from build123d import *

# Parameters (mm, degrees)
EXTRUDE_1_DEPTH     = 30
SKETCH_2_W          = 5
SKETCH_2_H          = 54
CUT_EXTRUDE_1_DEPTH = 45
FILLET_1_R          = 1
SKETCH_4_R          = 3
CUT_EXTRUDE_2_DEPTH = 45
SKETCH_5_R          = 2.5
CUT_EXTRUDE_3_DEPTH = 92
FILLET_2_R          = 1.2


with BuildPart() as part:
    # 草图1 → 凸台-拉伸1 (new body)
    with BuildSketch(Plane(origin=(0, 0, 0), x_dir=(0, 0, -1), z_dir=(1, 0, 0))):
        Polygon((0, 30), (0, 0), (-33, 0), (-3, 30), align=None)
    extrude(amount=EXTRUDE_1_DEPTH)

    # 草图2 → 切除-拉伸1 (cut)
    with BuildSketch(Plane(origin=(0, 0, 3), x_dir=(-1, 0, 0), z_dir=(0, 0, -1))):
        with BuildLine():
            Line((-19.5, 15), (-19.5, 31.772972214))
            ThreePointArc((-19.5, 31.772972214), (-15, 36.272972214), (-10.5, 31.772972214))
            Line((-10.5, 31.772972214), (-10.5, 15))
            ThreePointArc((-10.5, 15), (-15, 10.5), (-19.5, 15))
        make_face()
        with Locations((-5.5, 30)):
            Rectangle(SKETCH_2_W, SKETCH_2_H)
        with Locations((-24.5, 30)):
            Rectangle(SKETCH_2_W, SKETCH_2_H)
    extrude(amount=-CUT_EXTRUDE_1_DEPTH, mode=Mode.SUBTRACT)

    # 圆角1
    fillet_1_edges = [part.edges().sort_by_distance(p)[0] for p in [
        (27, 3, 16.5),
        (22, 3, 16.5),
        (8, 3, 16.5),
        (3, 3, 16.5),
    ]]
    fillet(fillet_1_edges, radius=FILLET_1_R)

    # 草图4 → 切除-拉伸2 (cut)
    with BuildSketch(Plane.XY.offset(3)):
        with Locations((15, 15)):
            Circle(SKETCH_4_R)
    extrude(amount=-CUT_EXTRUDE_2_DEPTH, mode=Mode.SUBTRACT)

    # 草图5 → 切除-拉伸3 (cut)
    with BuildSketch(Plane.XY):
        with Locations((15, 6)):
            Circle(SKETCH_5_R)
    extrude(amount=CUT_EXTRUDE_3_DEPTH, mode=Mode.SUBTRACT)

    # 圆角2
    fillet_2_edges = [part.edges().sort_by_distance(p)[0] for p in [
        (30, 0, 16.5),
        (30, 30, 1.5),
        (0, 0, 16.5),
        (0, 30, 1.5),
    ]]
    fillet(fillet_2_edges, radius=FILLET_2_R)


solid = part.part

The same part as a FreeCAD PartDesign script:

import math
import FreeCAD as App
import Part
import Sketcher
Q = App.Units.Quantity


def edges_at(feature, points):
    """Names of the edges that pass closest to the given points."""
    edges = feature.Shape.Edges
    near = lambda p: min(range(len(edges)), key=lambda i: edges[i].distToShape(Part.Vertex(*p))[0])
    return sorted({f"Edge{near(p) + 1}" for p in points})

doc = App.newDocument("Part")
body = doc.addObject("PartDesign::Body", "Body")

# Sketch on YZ plane
sketch1 = doc.addObject("Sketcher::SketchObject", "Sketch")
body.addObject(sketch1)
sketch1.AttachmentSupport = (doc.YZ_Plane, [""])
sketch1.MapMode = "FlatFace"
sketch1.addGeometry(Part.LineSegment(App.Vector(0, 0, 0), App.Vector(30, 0, 0)), False)
sketch1.addGeometry(Part.LineSegment(App.Vector(30, 0, 0), App.Vector(30, 3, 0)), False)
sketch1.addGeometry(Part.LineSegment(App.Vector(30, 3, 0), App.Vector(0, 33, 0)), False)
sketch1.addGeometry(Part.LineSegment(App.Vector(0, 33, 0), App.Vector(0, 0, 0)), False)
sketch1.addConstraint(Sketcher.Constraint("Coincident", 0, 2, 1, 1))
sketch1.addConstraint(Sketcher.Constraint("Coincident", 1, 2, 2, 1))
sketch1.addConstraint(Sketcher.Constraint("Coincident", 2, 2, 3, 1))
sketch1.addConstraint(Sketcher.Constraint("Coincident", 3, 2, 0, 1))
sketch1.addConstraint(Sketcher.Constraint("Horizontal", 0))
sketch1.addConstraint(Sketcher.Constraint("Vertical", 1))
sketch1.addConstraint(Sketcher.Constraint("Vertical", 3))
sketch1.addConstraint(Sketcher.Constraint("Coincident", 3, 2, -1, 1))
sketch1.addConstraint(Sketcher.Constraint("DistanceX", 0, 1, 0, 2, Q("30 mm")))
sketch1.addConstraint(Sketcher.Constraint("DistanceY", 1, 1, 1, 2, Q("3 mm")))
sketch1.addConstraint(Sketcher.Constraint("DistanceY", 3, 2, 3, 1, Q("33 mm")))
pad1 = doc.addObject("PartDesign::Pad", "Pad")
body.addObject(pad1)
pad1.Profile = sketch1
pad1.Length = 30

# Sketch on XY plane
sketch2 = doc.addObject("Sketcher::SketchObject", "Sketch001")
body.addObject(sketch2)
sketch2.AttachmentSupport = (doc.XY_Plane, [""])
sketch2.MapMode = "FlatFace"
sketch2.AttachmentOffset = App.Placement(App.Vector(0, 0, 3), App.Rotation())
sketch2.addGeometry(Part.LineSegment(App.Vector(19.5, 31.8, 0), App.Vector(19.5, 15, 0)), False)
sketch2.addGeometry(Part.ArcOfCircle(Part.Circle(App.Vector(15, 15, 0), App.Vector(0, 0, 1), 4.5), math.radians(180), math.radians(360)), False)
sketch2.addGeometry(Part.LineSegment(App.Vector(10.5, 15, 0), App.Vector(10.5, 31.8, 0)), False)
sketch2.addGeometry(Part.ArcOfCircle(Part.Circle(App.Vector(15, 31.8, 0), App.Vector(0, 0, 1), 4.5), math.radians(0), math.radians(180)), False)
sketch2.addGeometry(Part.LineSegment(App.Vector(8, 57, 0), App.Vector(8, 3, 0)), False)
sketch2.addGeometry(Part.LineSegment(App.Vector(8, 3, 0), App.Vector(3, 3, 0)), False)
sketch2.addGeometry(Part.LineSegment(App.Vector(3, 3, 0), App.Vector(3, 57, 0)), False)
sketch2.addGeometry(Part.LineSegment(App.Vector(3, 57, 0), App.Vector(8, 57, 0)), False)
sketch2.addGeometry(Part.LineSegment(App.Vector(27, 57, 0), App.Vector(27, 3, 0)), False)
sketch2.addGeometry(Part.LineSegment(App.Vector(27, 3, 0), App.Vector(22, 3, 0)), False)
sketch2.addGeometry(Part.LineSegment(App.Vector(22, 3, 0), App.Vector(22, 57, 0)), False)
sketch2.addGeometry(Part.LineSegment(App.Vector(22, 57, 0), App.Vector(27, 57, 0)), False)
sketch2.addConstraint(Sketcher.Constraint("Tangent", 0, 2, 1, 2))
sketch2.addConstraint(Sketcher.Constraint("Tangent", 1, 1, 2, 1))
sketch2.addConstraint(Sketcher.Constraint("Tangent", 2, 2, 3, 2))
sketch2.addConstraint(Sketcher.Constraint("Tangent", 3, 1, 0, 1))
sketch2.addConstraint(Sketcher.Constraint("Coincident", 4, 2, 5, 1))
sketch2.addConstraint(Sketcher.Constraint("Coincident", 5, 2, 6, 1))
sketch2.addConstraint(Sketcher.Constraint("Coincident", 6, 2, 7, 1))
sketch2.addConstraint(Sketcher.Constraint("Coincident", 7, 2, 4, 1))
sketch2.addConstraint(Sketcher.Constraint("Coincident", 8, 2, 9, 1))
sketch2.addConstraint(Sketcher.Constraint("Coincident", 9, 2, 10, 1))
sketch2.addConstraint(Sketcher.Constraint("Coincident", 10, 2, 11, 1))
sketch2.addConstraint(Sketcher.Constraint("Coincident", 11, 2, 8, 1))
sketch2.addConstraint(Sketcher.Constraint("Vertical", 0))
sketch2.addConstraint(Sketcher.Constraint("Vertical", 2))
sketch2.addConstraint(Sketcher.Constraint("Vertical", 4))
sketch2.addConstraint(Sketcher.Constraint("Horizontal", 5))
sketch2.addConstraint(Sketcher.Constraint("Vertical", 6))
sketch2.addConstraint(Sketcher.Constraint("Horizontal", 7))
sketch2.addConstraint(Sketcher.Constraint("Vertical", 8))
sketch2.addConstraint(Sketcher.Constraint("Horizontal", 9))
sketch2.addConstraint(Sketcher.Constraint("Vertical", 10))
sketch2.addConstraint(Sketcher.Constraint("Horizontal", 11))
sketch2.addConstraint(Sketcher.Constraint("Horizontal", 5, 2, 8, 2))
sketch2.addConstraint(Sketcher.Constraint("Horizontal", 7, 2, 10, 2))
sketch2.addConstraint(Sketcher.Constraint("Equal", 7, 9))
sketch2.addConstraint(Sketcher.Constraint("Radius", 1, Q("4.5 mm")))
sketch2.addConstraint(Sketcher.Constraint("DistanceX", 5, 2, 5, 1, Q("5 mm")))
sketch2.addConstraint(Sketcher.Constraint("DistanceY", 4, 2, 4, 1, Q("54 mm")))
sketch2.addConstraint(Sketcher.Constraint("DistanceX", -1, 1, 1, 3, Q("15 mm")))
sketch2.addConstraint(Sketcher.Constraint("DistanceY", -1, 1, 1, 3, Q("15 mm")))
sketch2.addConstraint(Sketcher.Constraint("DistanceX", -1, 1, 4, 2, Q("8 mm")))
sketch2.addConstraint(Sketcher.Constraint("DistanceY", -1, 1, 4, 2, Q("3 mm")))
sketch2.addConstraint(Sketcher.Constraint("DistanceX", -1, 1, 8, 2, Q("27 mm")))
sketch2.addConstraint(Sketcher.Constraint("DistanceY", 0, 2, 0, 1, Q("16.772972 mm")))
pocket1 = doc.addObject("PartDesign::Pocket", "Pocket")
body.addObject(pocket1)
pocket1.Profile = sketch2
pocket1.Length = 45
pocket1.Reversed = True
doc.recompute()

fillet = doc.addObject("PartDesign::Fillet", "Fillet")
body.addObject(fillet)
fillet.Base = (pocket1, edges_at(pocket1, [
    (27, 3, 16.5),
    (22, 3, 16.5),
    (8, 3, 16.5),
    (3, 3, 16.5),
]))
fillet.Radius = 1

# Sketch on XY plane
sketch3 = doc.addObject("Sketcher::SketchObject", "Sketch002")
body.addObject(sketch3)
sketch3.AttachmentSupport = (doc.XY_Plane, [""])
sketch3.MapMode = "FlatFace"
sketch3.AttachmentOffset = App.Placement(App.Vector(0, 0, 3), App.Rotation())
sketch3.addGeometry(Part.Circle(App.Vector(15, 15, 0), App.Vector(0, 0, 1), 3), False)
sketch3.addConstraint(Sketcher.Constraint("Diameter", 0, Q("6 mm")))
sketch3.addConstraint(Sketcher.Constraint("DistanceX", -1, 1, 0, 3, Q("15 mm")))
sketch3.addConstraint(Sketcher.Constraint("DistanceY", -1, 1, 0, 3, Q("15 mm")))
pocket2 = doc.addObject("PartDesign::Pocket", "Pocket001")
body.addObject(pocket2)
pocket2.Profile = sketch3
pocket2.Length = 45

# Sketch on XY plane
sketch4 = doc.addObject("Sketcher::SketchObject", "Sketch003")
body.addObject(sketch4)
sketch4.AttachmentSupport = (doc.XY_Plane, [""])
sketch4.MapMode = "FlatFace"
sketch4.addGeometry(Part.Circle(App.Vector(15, 6, 0), App.Vector(0, 0, 1), 2.5), False)
sketch4.addConstraint(Sketcher.Constraint("Diameter", 0, Q("5 mm")))
sketch4.addConstraint(Sketcher.Constraint("DistanceX", -1, 1, 0, 3, Q("15 mm")))
sketch4.addConstraint(Sketcher.Constraint("DistanceY", -1, 1, 0, 3, Q("6 mm")))
pocket3 = doc.addObject("PartDesign::Pocket", "Pocket002")
body.addObject(pocket3)
pocket3.Profile = sketch4
pocket3.Length = 92
pocket3.Reversed = True
doc.recompute()

fillet2 = doc.addObject("PartDesign::Fillet", "Fillet001")
body.addObject(fillet2)
fillet2.Base = (pocket3, edges_at(pocket3, [
    (30, 0, 16.5),
    (30, 30, 1.5),
    (0, 0, 16.5),
    (0, 30, 1.5),
]))
fillet2.Radius = 1.2

doc.recompute()
